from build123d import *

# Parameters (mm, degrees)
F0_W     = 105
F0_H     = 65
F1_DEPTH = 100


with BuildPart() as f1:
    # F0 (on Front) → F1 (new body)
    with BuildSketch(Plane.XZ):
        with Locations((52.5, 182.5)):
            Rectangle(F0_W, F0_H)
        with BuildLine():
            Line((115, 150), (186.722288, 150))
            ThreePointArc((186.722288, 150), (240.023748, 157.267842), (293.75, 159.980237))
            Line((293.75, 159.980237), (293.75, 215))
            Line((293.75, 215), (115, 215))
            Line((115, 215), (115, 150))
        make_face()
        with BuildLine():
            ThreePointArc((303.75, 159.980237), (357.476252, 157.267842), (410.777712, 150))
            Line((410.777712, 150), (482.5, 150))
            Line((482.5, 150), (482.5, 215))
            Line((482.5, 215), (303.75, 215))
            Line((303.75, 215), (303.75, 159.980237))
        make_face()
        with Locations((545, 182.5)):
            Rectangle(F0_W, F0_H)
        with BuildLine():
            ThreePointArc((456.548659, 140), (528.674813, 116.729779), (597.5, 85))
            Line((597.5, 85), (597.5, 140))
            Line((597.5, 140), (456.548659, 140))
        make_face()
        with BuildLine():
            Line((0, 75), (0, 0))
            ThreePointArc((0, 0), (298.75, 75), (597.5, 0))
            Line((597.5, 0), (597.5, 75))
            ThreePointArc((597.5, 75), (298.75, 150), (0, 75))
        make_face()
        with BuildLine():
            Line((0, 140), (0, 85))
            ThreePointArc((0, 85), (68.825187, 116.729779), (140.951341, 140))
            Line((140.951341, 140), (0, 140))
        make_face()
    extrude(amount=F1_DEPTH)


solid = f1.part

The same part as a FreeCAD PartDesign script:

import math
import FreeCAD as App
import Part
import Sketcher

V = App.Vector


def add_polygon(sketch, points):
    """Adds a closed chain of lines whose ends are joined by coincident constraints."""
    first, n = sketch.GeometryCount, len(points)
    for a, b in zip(points, points[1:] + points[:1]):
        sketch.addGeometry(Part.LineSegment(App.Vector(*a, 0), App.Vector(*b, 0)), False)
    for i in range(n):
        sketch.addConstraint(Sketcher.Constraint("Coincident", first + i, 2, first + (i + 1) % n, 1))

doc = App.newDocument("Part")
params = doc.addObject("Spreadsheet::Sheet", "Params")
for row, (alias, value) in enumerate([
    ("sketch1_width", "105 mm"),
    ("sketch1_height", "65 mm"),
    ("sketch1_height2", "55 mm"),
    ("sketch1_height3", "75 mm"),
    ("sketch1_width2", "178.75 mm"),
    ("pad1_length", "100 mm"),
], start=1):
    params.set(f"A{row}", alias)
    params.set(f"B{row}", "=" + value)
    params.setAlias(f"B{row}", alias)

body = doc.addObject("PartDesign::Body", "Body")
body.AllowCompound = True

# Sketch on XZ plane
sketch1 = body.newObject("Sketcher::SketchObject", "Sketch")
sketch1.AttachmentSupport = (doc.getObject("XZ_Plane"), [""])
sketch1.MapMode = "FlatFace"
add_polygon(sketch1, [(0, 215), (0, 150), (105, 150), (105, 215)])  # lines 0-3
sketch1.addGeometry(Part.LineSegment(V(115, 150, 0), V(187, 150, 0)), False)  # 4
sketch1.addGeometry(Part.ArcOfCircle(Part.Circle(V(299, -473, 0), V(0, 0, 1), 633), math.radians(90.45), math.radians(100.2)), False)  # 5
sketch1.addGeometry(Part.LineSegment(V(294, 160, 0), V(294, 215, 0)), False)  # 6
sketch1.addGeometry(Part.LineSegment(V(294, 215, 0), V(115, 215, 0)), False)  # 7
sketch1.addGeometry(Part.LineSegment(V(115, 215, 0), V(115, 150, 0)), False)  # 8
sketch1.addGeometry(Part.ArcOfCircle(Part.Circle(V(299, -473, 0), V(0, 0, 1), 633), math.radians(79.8), math.radians(89.55)), False)  # 9
sketch1.addGeometry(Part.LineSegment(V(411, 150, 0), V(482, 150, 0)), False)  # 10
sketch1.addGeometry(Part.LineSegment(V(482, 150, 0), V(482, 215, 0)), False)  # 11
sketch1.addGeometry(Part.LineSegment(V(482, 215, 0), V(304, 215, 0)), False)  # 12
sketch1.addGeometry(Part.LineSegment(V(304, 215, 0), V(304, 160, 0)), False)  # 13
add_polygon(sketch1, [(492, 215), (492, 150), (598, 150), (598, 215)])  # lines 14-17
sketch1.addGeometry(Part.ArcOfCircle(Part.Circle(V(299, -473, 0), V(0, 0, 1), 633), math.radians(61.81), math.radians(75.55)), False)  # 18
sketch1.addGeometry(Part.LineSegment(V(598, 85, 0), V(598, 140, 0)), False)  # 19
sketch1.addGeometry(Part.LineSegment(V(598, 140, 0), V(457, 140, 0)), False)  # 20
sketch1.addGeometry(Part.LineSegment(V(0, 75, 0), V(0, 0, 0)), False)  # 21
sketch1.addGeometry(Part.ArcOfCircle(Part.Circle(V(299, -558, 0), V(0, 0, 1), 633), math.radians(62), math.radians(118)), False)  # 22
sketch1.addGeometry(Part.LineSegment(V(598, 0, 0), V(598, 75, 0)), False)  # 23
sketch1.addGeometry(Part.ArcOfCircle(Part.Circle(V(299, -483, 0), V(0, 0, 1), 633), math.radians(62), math.radians(118)), False)  # 24
sketch1.addGeometry(Part.LineSegment(V(0, 140, 0), V(0, 85, 0)), False)  # 25
sketch1.addGeometry(Part.ArcOfCircle(Part.Circle(V(299, -473, 0), V(0, 0, 1), 633), math.radians(104.45), math.radians(118.19)), False)  # 26
sketch1.addGeometry(Part.LineSegment(V(141, 140, 0), V(0, 140, 0)), False)  # 27
sketch1.addConstraint([
    Sketcher.Constraint("Coincident", 4, 2, 5, 2),
    Sketcher.Constraint("Coincident", 5, 1, 6, 1),
    Sketcher.Constraint("Coincident", 6, 2, 7, 1),
    Sketcher.Constraint("Coincident", 7, 2, 8, 1),
    Sketcher.Constraint("Coincident", 8, 2, 4, 1),
    Sketcher.Constraint("Coincident", 9, 1, 10, 1),
    Sketcher.Constraint("Coincident", 10, 2, 11, 1),
    Sketcher.Constraint("Coincident", 11, 2, 12, 1),
    Sketcher.Constraint("Coincident", 12, 2, 13, 1),
    Sketcher.Constraint("Coincident", 13, 2, 9, 2),
    Sketcher.Constraint("Coincident", 18, 1, 19, 1),
    Sketcher.Constraint("Coincident", 19, 2, 20, 1),
    Sketcher.Constraint("Coincident", 20, 2, 18, 2),
    Sketcher.Constraint("Coincident", 21, 2, 22, 2),
    Sketcher.Constraint("Coincident", 22, 1, 23, 1),
    Sketcher.Constraint("Coincident", 23, 2, 24, 1),
    Sketcher.Constraint("Coincident", 24, 2, 21, 1),
    Sketcher.Constraint("Coincident", 25, 2, 26, 2),
    Sketcher.Constraint("Coincident", 26, 1, 27, 1),
    Sketcher.Constraint("Coincident", 27, 2, 25, 1),
    Sketcher.Constraint("Vertical", 0),
    Sketcher.Constraint("Horizontal", 1),
    Sketcher.Constraint("Vertical", 2),
    Sketcher.Constraint("Horizontal", 3),
    Sketcher.Constraint("Horizontal", 4),
    Sketcher.Constraint("Vertical", 6),
    Sketcher.Constraint("Horizontal", 7),
    Sketcher.Constraint("Vertical", 8),
    Sketcher.Constraint("Horizontal", 10),
    Sketcher.Constraint("Vertical", 11),
    Sketcher.Constraint("Horizontal", 12),
    Sketcher.Constraint("Vertical", 13),
    Sketcher.Constraint("Vertical", 14),
    Sketcher.Constraint("Horizontal", 15),
    Sketcher.Constraint("Vertical", 16),
    Sketcher.Constraint("Horizontal", 17),
    Sketcher.Constraint("Vertical", 19),
    Sketcher.Constraint("Horizontal", 20),
    Sketcher.Constraint("Vertical", 21),
    Sketcher.Constraint("Vertical", 23),
    Sketcher.Constraint("Vertical", 25),
    Sketcher.Constraint("Horizontal", 27),
    Sketcher.Constraint("Coincident", 21, 2, -1, 1),
    Sketcher.Constraint("Equal", 5, 9),
    Sketcher.Constraint("Equal", 22, 24),
    Sketcher.Constraint("Equal", 18, 26),
    Sketcher.Constraint("PointOnObject", 0, 2, -2),
    Sketcher.Constraint("PointOnObject", 22, 1, -1),
    Sketcher.Constraint("PointOnObject", 25, 2, -2),
    Sketcher.Constraint("Horizontal", 5, 3, 9, 3),
    Sketcher.Constraint("Horizontal", 18, 3, 26, 3),
    Sketcher.Constraint("Horizontal", 1, 2, 4, 2),
    Sketcher.Constraint("Horizontal", 3, 2, 6, 2),
    Sketcher.Constraint("Horizontal", 8, 2, 9, 1),
    Sketcher.Constraint("Horizontal", 7, 2, 11, 2),
    Sketcher.Constraint("Horizontal", 10, 2, 14, 2),
    Sketcher.Constraint("Horizontal", 12, 2, 16, 2),
    Sketcher.Constraint("Horizontal", 23, 2, 24, 2),
    Sketcher.Constraint("Horizontal", 18, 1, 25, 2),
    Sketcher.Constraint("Horizontal", 20, 2, 26, 1),
    Sketcher.Constraint("Equal", 4, 10),
    Sketcher.Constraint("Equal", 7, 12),
    Sketcher.Constraint("Equal", 3, 15),
    Sketcher.Constraint("DistanceX", 1, 1, 1, 2, 105.0),
    Sketcher.Constraint("DistanceY", 0, 2, 0, 1, 65.0),
    Sketcher.Constraint("DistanceY", 19, 1, 19, 2, 55.0),
    Sketcher.Constraint("DistanceY", 21, 2, 21, 1, 75.0),
    Sketcher.Constraint("DistanceY", -1, 1, 0, 2, 150.0),
    Sketcher.Constraint("DistanceX", -1, 1, 7, 2, 115.0),
    Sketcher.Constraint("DistanceY", -1, 1, 19, 2, 140.0),
    Sketcher.Constraint("DistanceX", 6, 2, 12, 2, 10.0),
    Sketcher.Constraint("DistanceX", 10, 2, 14, 2, 10.0),
    Sketcher.Constraint("DistanceX", 14, 2, 19, 2, 105.0),
    Sketcher.Constraint("DistanceX", 14, 2, 23, 2, 105.0),
    Sketcher.Constraint("DistanceX", 7, 2, 7, 1, 178.75),
    Sketcher.Constraint("Radius", 5, 632.51026),
    Sketcher.Constraint("Radius", 18, 632.510354),
    Sketcher.Constraint("Radius", 22, 632.510417),
    Sketcher.Constraint("DistanceX", 20, 2, 20, 1, 140.951341),
    Sketcher.Constraint("DistanceX", 4, 1, 4, 2, 71.722288),
    Sketcher.Constraint("DistanceY", 6, 1, 6, 2, 55.019763),
])
sketch1.setExpression("Constraints[71]", "Params.sketch1_width")
sketch1.setExpression("Constraints[72]", "Params.sketch1_height")
sketch1.setExpression("Constraints[73]", "Params.sketch1_height2")
sketch1.setExpression("Constraints[74]", "Params.sketch1_height3")
sketch1.setExpression("Constraints[82]", "Params.sketch1_width2")
pad1 = body.newObject("PartDesign::Pad", "Pad")
pad1.Profile = sketch1
pad1.setExpression("Length", "Params.pad1_length")

doc.recompute()
